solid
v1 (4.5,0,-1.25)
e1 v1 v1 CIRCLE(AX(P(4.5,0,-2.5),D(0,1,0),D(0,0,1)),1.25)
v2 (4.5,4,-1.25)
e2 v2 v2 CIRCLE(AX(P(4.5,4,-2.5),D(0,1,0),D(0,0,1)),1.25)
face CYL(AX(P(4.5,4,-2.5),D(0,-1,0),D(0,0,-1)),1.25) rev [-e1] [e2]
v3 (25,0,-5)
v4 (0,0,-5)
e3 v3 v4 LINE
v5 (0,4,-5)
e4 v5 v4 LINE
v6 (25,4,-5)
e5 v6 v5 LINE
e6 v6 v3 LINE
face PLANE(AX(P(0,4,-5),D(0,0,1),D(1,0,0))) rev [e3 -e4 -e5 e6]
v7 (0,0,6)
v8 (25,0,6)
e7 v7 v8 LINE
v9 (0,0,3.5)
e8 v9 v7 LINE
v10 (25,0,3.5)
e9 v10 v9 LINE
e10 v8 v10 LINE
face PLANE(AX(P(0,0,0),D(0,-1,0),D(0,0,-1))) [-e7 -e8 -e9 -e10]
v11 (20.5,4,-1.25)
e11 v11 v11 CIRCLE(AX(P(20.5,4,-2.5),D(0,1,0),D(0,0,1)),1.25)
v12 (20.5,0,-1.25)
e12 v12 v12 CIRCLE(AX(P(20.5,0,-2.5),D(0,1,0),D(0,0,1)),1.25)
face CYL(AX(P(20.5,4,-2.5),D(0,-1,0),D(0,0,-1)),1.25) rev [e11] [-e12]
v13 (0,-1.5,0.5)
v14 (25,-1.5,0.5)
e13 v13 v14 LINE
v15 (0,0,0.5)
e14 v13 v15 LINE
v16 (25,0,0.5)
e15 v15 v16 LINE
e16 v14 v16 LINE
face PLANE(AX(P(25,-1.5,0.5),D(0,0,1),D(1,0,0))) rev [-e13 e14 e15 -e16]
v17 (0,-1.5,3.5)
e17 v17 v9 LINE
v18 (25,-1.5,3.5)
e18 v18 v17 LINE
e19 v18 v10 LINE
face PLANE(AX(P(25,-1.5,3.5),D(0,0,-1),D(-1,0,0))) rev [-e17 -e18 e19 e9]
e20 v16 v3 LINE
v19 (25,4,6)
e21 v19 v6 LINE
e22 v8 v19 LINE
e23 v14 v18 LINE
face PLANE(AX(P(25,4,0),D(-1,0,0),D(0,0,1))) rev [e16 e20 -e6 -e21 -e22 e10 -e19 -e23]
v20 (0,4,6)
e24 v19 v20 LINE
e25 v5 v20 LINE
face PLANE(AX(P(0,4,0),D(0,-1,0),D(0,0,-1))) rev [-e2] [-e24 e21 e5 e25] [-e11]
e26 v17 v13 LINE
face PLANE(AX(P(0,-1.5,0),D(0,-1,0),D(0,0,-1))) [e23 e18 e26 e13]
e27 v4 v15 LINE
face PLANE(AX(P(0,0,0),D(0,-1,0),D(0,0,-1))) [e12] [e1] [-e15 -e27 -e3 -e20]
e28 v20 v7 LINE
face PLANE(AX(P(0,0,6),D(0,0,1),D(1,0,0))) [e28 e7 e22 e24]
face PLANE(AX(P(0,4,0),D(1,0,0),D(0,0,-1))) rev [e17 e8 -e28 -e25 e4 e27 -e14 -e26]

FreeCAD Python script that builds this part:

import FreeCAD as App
import Part
import Sketcher

V = App.Vector

doc = App.newDocument("Part")
params = doc.addObject("Spreadsheet::Sheet", "Params")
for row, (alias, value) in enumerate([
    ("sketch1_diameter", "2.5 mm"),
    ("sketch1_width", "25 mm"),
    ("sketch1_height", "5 mm"),
    ("pad1_length", "4 mm"),
    ("sketch2_width", "25 mm"),
    ("sketch2_height", "4 mm"),
    ("pad2_length", "6 mm"),
    ("sketch3_width", "25 mm"),
    ("sketch3_height", "3 mm"),
    ("pad3_length", "1.5 mm"),
], start=1):
    params.set(f"A{row}", alias)
    params.set(f"B{row}", "=" + value)
    params.setAlias(f"B{row}", alias)

body = doc.addObject("PartDesign::Body", "Body")

# Sketch on XZ plane
sketch1 = body.newObject("Sketcher::SketchObject", "Sketch")
sketch1.AttachmentSupport = (doc.getObject("XZ_Plane"), [""])
sketch1.MapMode = "FlatFace"
sketch1.addGeometry([
    Part.LineSegment(V(0, -5, 0), V(0, 0, 0)),  # 0
    Part.LineSegment(V(0, 0, 0), V(25, 0, 0)),  # 1
    Part.LineSegment(V(25, 0, 0), V(25, -5, 0)),  # 2
    Part.LineSegment(V(25, -5, 0), V(0, -5, 0)),  # 3
    Part.Circle(V(4.5, -2.5, 0), V(0, 0, 1), 1.2),  # 4
    Part.Circle(V(20.5, -2.5, 0), V(0, 0, 1), 1.2),  # 5
], False)
sketch1.addConstraint([
    Sketcher.Constraint("Coincident", 0, 2, 1, 1),
    Sketcher.Constraint("Coincident", 1, 2, 2, 1),
    Sketcher.Constraint("Coincident", 2, 2, 3, 1),
    Sketcher.Constraint("Coincident", 3, 2, 0, 1),
    Sketcher.Constraint("Vertical", 0),
    Sketcher.Constraint("Horizontal", 1),
    Sketcher.Constraint("Vertical", 2),
    Sketcher.Constraint("Horizontal", 3),
    Sketcher.Constraint("Coincident", 0, 2, -1, 1),
    Sketcher.Constraint("Equal", 4, 5),
    Sketcher.Constraint("Horizontal", 4, 3, 5, 3),
    Sketcher.Constraint("Diameter", 4, 2.5),
    Sketcher.Constraint("DistanceX", 1, 1, 1, 2, 25.0),
    Sketcher.Constraint("DistanceY", 0, 1, 0, 2, 5.0),
    Sketcher.Constraint("DistanceX", 4, 3, 5, 3, 16.0),
    Sketcher.Constraint("DistanceX", -1, 1, 4, 3, 4.5),
    Sketcher.Constraint("DistanceY", 4, 3, -1, 1, 2.5),
])
sketch1.setExpression("Constraints[11]", "Params.sketch1_diameter")
sketch1.setExpression("Constraints[12]", "Params.sketch1_width")
sketch1.setExpression("Constraints[13]", "Params.sketch1_height")
pad1 = body.newObject("PartDesign::Pad", "Pad")
pad1.Profile = sketch1
pad1.setExpression("Length", "Params.pad1_length")
pad1.Reversed = True

# Sketch on XY plane
sketch2 = body.newObject("Sketcher::SketchObject", "Sketch001")
sketch2.AttachmentSupport = (doc.getObject("XY_Plane"), [""])
sketch2.MapMode = "FlatFace"
sketch2.addGeometry([
    Part.LineSegment(V(0, 4, 0), V(0, 0, 0)),
    Part.LineSegment(V(0, 0, 0), V(25, 0, 0)),
    Part.LineSegment(V(25, 0, 0), V(25, 4, 0)),
    Part.LineSegment(V(25, 4, 0), V(0, 4, 0)),
], False)
sketch2.addConstraint([
    Sketcher.Constraint("Coincident", 0, 2, 1, 1),
    Sketcher.Constraint("Coincident", 1, 2, 2, 1),
    Sketcher.Constraint("Coincident", 2, 2, 3, 1),
    Sketcher.Constraint("Coincident", 3, 2, 0, 1),
    Sketcher.Constraint("Vertical", 0),
    Sketcher.Constraint("Horizontal", 1),
    Sketcher.Constraint("Vertical", 2),
    Sketcher.Constraint("Horizontal", 3),
    Sketcher.Constraint("Coincident", 0, 2, -1, 1),
    Sketcher.Constraint("DistanceX", 1, 1, 1, 2, 25.0),
    Sketcher.Constraint("DistanceY", 0, 2, 0, 1, 4.0),
])
sketch2.setExpression("Constraints[9]", "Params.sketch2_width")
sketch2.setExpression("Constraints[10]", "Params.sketch2_height")
pad2 = body.newObject("PartDesign::Pad", "Pad001")
pad2.Profile = sketch2
pad2.setExpression("Length", "Params.pad2_length")

# Sketch on XZ plane
sketch3 = body.newObject("Sketcher::SketchObject", "Sketch002")
sketch3.AttachmentSupport = (doc.getObject("XZ_Plane"), [""])
sketch3.MapMode = "FlatFace"
sketch3.addGeometry([
    Part.LineSegment(V(0, 3.5, 0), V(0, 0.5, 0)),
    Part.LineSegment(V(0, 0.5, 0), V(25, 0.5, 0)),
    Part.LineSegment(V(25, 0.5, 0), V(25, 3.5, 0)),
    Part.LineSegment(V(25, 3.5, 0), V(0, 3.5, 0)),
], False)
sketch3.addConstraint([
    Sketcher.Constraint("Coincident", 0, 2, 1, 1),
    Sketcher.Constraint("Coincident", 1, 2, 2, 1),
    Sketcher.Constraint("Coincident", 2, 2, 3, 1),
    Sketcher.Constraint("Coincident", 3, 2, 0, 1),
    Sketcher.Constraint("Vertical", 0),
    Sketcher.Constraint("Horizontal", 1),
    Sketcher.Constraint("Vertical", 2),
    Sketcher.Constraint("Horizontal", 3),
    Sketcher.Constraint("PointOnObject", 0, 2, -2),
    Sketcher.Constraint("DistanceX", 1, 1, 1, 2, 25.0),
    Sketcher.Constraint("DistanceY", 0, 2, 0, 1, 3.0),
    Sketcher.Constraint("DistanceY", -1, 1, 0, 2, 0.5),
])
sketch3.setExpression("Constraints[9]", "Params.sketch3_width")
sketch3.setExpression("Constraints[10]", "Params.sketch3_height")
pad3 = body.newObject("PartDesign::Pad", "Pad002")
pad3.Profile = sketch3
pad3.setExpression("Length", "Params.pad3_length")

doc.recompute()
